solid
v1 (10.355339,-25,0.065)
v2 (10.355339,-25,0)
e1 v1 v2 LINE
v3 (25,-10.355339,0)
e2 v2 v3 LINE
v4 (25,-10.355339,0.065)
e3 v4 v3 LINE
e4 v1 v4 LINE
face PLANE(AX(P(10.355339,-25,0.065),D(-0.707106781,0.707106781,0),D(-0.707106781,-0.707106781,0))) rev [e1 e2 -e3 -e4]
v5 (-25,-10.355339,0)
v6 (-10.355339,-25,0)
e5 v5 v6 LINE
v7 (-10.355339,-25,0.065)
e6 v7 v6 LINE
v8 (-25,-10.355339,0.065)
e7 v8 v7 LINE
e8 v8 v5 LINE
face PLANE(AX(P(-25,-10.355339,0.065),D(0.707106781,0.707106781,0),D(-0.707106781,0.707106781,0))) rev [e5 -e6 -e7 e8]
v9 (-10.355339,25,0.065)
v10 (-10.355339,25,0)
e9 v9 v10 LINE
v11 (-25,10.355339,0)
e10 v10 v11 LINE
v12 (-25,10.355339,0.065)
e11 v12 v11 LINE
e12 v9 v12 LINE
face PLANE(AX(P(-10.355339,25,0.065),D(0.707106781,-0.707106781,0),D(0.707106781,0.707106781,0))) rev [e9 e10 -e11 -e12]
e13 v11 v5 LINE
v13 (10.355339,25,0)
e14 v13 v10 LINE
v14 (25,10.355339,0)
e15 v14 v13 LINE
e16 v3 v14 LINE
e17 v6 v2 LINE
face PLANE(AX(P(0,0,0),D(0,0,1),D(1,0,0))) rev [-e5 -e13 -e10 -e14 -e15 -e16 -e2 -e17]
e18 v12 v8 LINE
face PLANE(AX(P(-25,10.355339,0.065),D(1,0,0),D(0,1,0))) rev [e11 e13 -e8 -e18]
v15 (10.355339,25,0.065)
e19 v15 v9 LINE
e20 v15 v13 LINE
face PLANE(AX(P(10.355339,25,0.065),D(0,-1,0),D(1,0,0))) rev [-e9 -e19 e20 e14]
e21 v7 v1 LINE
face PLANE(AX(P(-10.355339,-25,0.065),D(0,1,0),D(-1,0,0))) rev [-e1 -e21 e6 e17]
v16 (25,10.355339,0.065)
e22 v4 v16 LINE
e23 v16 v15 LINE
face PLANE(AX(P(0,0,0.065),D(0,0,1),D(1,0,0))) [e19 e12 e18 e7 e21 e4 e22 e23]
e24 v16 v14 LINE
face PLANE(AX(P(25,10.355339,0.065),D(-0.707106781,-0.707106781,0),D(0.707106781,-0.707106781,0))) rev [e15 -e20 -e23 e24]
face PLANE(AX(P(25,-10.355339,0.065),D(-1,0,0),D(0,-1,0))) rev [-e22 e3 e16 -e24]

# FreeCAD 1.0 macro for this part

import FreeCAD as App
import Part
import Sketcher
Q = App.Units.Quantity


def add_polygon(sketch, points):
    """Adds a closed chain of lines whose ends are joined by coincident constraints."""
    first, n = sketch.GeometryCount, len(points)
    for a, b in zip(points, points[1:] + points[:1]):
        sketch.addGeometry(Part.LineSegment(App.Vector(*a, 0), App.Vector(*b, 0)), False)
    for i in range(n):
        sketch.addConstraint(Sketcher.Constraint("Coincident", first + i, 2, first + (i + 1) % n, 1))

doc = App.newDocument("Part")
body = doc.addObject("PartDesign::Body", "Body")

# Sketch on XY plane
sketch1 = doc.addObject("Sketcher::SketchObject", "Sketch")
body.addObject(sketch1)
sketch1.AttachmentSupport = (doc.XY_Plane, [""])
sketch1.MapMode = "FlatFace"
add_polygon(sketch1, [(-10.355339, -25), (10.355339, -25), (25, -10.355339), (25, 10.355339), (10.355339, 25), (-10.355339, 25), (-25, 10.355339), (-25, -10.355339)])  # lines 0-7
sketch1.addConstraint(Sketcher.Constraint("Horizontal", 0))
sketch1.addConstraint(Sketcher.Constraint("Vertical", 2))
sketch1.addConstraint(Sketcher.Constraint("Horizontal", 4))
sketch1.addConstraint(Sketcher.Constraint("Vertical", 6))
sketch1.addConstraint(Sketcher.Constraint("Symmetric", 0, 2, 4, 2, -1, 1))
sketch1.addConstraint(Sketcher.Constraint("Symmetric", 1, 2, 5, 2, -1, 1))
sketch1.addConstraint(Sketcher.Constraint("Perpendicular", 1, 3))
sketch1.addConstraint(Sketcher.Constraint("Perpendicular", 5, 7))
sketch1.addConstraint(Sketcher.Constraint("Horizontal", 2, 2, 5, 2))
sketch1.addConstraint(Sketcher.Constraint("Horizontal", 1, 2, 6, 2))
sketch1.addConstraint(Sketcher.Constraint("Vertical", 0, 2, 3, 2))
sketch1.addConstraint(Sketcher.Constraint("Equal", 4, 2))
sketch1.addConstraint(Sketcher.Constraint("DistanceY", 0, 2, -1, 1, Q("25 mm")))
sketch1.addConstraint(Sketcher.Constraint("DistanceX", 0, 1, 0, 2, Q("20.710678 mm")))
pad1 = doc.addObject("PartDesign::Pad", "Pad")
body.addObject(pad1)
pad1.Profile = sketch1
pad1.Length = 0.065

doc.recompute()
